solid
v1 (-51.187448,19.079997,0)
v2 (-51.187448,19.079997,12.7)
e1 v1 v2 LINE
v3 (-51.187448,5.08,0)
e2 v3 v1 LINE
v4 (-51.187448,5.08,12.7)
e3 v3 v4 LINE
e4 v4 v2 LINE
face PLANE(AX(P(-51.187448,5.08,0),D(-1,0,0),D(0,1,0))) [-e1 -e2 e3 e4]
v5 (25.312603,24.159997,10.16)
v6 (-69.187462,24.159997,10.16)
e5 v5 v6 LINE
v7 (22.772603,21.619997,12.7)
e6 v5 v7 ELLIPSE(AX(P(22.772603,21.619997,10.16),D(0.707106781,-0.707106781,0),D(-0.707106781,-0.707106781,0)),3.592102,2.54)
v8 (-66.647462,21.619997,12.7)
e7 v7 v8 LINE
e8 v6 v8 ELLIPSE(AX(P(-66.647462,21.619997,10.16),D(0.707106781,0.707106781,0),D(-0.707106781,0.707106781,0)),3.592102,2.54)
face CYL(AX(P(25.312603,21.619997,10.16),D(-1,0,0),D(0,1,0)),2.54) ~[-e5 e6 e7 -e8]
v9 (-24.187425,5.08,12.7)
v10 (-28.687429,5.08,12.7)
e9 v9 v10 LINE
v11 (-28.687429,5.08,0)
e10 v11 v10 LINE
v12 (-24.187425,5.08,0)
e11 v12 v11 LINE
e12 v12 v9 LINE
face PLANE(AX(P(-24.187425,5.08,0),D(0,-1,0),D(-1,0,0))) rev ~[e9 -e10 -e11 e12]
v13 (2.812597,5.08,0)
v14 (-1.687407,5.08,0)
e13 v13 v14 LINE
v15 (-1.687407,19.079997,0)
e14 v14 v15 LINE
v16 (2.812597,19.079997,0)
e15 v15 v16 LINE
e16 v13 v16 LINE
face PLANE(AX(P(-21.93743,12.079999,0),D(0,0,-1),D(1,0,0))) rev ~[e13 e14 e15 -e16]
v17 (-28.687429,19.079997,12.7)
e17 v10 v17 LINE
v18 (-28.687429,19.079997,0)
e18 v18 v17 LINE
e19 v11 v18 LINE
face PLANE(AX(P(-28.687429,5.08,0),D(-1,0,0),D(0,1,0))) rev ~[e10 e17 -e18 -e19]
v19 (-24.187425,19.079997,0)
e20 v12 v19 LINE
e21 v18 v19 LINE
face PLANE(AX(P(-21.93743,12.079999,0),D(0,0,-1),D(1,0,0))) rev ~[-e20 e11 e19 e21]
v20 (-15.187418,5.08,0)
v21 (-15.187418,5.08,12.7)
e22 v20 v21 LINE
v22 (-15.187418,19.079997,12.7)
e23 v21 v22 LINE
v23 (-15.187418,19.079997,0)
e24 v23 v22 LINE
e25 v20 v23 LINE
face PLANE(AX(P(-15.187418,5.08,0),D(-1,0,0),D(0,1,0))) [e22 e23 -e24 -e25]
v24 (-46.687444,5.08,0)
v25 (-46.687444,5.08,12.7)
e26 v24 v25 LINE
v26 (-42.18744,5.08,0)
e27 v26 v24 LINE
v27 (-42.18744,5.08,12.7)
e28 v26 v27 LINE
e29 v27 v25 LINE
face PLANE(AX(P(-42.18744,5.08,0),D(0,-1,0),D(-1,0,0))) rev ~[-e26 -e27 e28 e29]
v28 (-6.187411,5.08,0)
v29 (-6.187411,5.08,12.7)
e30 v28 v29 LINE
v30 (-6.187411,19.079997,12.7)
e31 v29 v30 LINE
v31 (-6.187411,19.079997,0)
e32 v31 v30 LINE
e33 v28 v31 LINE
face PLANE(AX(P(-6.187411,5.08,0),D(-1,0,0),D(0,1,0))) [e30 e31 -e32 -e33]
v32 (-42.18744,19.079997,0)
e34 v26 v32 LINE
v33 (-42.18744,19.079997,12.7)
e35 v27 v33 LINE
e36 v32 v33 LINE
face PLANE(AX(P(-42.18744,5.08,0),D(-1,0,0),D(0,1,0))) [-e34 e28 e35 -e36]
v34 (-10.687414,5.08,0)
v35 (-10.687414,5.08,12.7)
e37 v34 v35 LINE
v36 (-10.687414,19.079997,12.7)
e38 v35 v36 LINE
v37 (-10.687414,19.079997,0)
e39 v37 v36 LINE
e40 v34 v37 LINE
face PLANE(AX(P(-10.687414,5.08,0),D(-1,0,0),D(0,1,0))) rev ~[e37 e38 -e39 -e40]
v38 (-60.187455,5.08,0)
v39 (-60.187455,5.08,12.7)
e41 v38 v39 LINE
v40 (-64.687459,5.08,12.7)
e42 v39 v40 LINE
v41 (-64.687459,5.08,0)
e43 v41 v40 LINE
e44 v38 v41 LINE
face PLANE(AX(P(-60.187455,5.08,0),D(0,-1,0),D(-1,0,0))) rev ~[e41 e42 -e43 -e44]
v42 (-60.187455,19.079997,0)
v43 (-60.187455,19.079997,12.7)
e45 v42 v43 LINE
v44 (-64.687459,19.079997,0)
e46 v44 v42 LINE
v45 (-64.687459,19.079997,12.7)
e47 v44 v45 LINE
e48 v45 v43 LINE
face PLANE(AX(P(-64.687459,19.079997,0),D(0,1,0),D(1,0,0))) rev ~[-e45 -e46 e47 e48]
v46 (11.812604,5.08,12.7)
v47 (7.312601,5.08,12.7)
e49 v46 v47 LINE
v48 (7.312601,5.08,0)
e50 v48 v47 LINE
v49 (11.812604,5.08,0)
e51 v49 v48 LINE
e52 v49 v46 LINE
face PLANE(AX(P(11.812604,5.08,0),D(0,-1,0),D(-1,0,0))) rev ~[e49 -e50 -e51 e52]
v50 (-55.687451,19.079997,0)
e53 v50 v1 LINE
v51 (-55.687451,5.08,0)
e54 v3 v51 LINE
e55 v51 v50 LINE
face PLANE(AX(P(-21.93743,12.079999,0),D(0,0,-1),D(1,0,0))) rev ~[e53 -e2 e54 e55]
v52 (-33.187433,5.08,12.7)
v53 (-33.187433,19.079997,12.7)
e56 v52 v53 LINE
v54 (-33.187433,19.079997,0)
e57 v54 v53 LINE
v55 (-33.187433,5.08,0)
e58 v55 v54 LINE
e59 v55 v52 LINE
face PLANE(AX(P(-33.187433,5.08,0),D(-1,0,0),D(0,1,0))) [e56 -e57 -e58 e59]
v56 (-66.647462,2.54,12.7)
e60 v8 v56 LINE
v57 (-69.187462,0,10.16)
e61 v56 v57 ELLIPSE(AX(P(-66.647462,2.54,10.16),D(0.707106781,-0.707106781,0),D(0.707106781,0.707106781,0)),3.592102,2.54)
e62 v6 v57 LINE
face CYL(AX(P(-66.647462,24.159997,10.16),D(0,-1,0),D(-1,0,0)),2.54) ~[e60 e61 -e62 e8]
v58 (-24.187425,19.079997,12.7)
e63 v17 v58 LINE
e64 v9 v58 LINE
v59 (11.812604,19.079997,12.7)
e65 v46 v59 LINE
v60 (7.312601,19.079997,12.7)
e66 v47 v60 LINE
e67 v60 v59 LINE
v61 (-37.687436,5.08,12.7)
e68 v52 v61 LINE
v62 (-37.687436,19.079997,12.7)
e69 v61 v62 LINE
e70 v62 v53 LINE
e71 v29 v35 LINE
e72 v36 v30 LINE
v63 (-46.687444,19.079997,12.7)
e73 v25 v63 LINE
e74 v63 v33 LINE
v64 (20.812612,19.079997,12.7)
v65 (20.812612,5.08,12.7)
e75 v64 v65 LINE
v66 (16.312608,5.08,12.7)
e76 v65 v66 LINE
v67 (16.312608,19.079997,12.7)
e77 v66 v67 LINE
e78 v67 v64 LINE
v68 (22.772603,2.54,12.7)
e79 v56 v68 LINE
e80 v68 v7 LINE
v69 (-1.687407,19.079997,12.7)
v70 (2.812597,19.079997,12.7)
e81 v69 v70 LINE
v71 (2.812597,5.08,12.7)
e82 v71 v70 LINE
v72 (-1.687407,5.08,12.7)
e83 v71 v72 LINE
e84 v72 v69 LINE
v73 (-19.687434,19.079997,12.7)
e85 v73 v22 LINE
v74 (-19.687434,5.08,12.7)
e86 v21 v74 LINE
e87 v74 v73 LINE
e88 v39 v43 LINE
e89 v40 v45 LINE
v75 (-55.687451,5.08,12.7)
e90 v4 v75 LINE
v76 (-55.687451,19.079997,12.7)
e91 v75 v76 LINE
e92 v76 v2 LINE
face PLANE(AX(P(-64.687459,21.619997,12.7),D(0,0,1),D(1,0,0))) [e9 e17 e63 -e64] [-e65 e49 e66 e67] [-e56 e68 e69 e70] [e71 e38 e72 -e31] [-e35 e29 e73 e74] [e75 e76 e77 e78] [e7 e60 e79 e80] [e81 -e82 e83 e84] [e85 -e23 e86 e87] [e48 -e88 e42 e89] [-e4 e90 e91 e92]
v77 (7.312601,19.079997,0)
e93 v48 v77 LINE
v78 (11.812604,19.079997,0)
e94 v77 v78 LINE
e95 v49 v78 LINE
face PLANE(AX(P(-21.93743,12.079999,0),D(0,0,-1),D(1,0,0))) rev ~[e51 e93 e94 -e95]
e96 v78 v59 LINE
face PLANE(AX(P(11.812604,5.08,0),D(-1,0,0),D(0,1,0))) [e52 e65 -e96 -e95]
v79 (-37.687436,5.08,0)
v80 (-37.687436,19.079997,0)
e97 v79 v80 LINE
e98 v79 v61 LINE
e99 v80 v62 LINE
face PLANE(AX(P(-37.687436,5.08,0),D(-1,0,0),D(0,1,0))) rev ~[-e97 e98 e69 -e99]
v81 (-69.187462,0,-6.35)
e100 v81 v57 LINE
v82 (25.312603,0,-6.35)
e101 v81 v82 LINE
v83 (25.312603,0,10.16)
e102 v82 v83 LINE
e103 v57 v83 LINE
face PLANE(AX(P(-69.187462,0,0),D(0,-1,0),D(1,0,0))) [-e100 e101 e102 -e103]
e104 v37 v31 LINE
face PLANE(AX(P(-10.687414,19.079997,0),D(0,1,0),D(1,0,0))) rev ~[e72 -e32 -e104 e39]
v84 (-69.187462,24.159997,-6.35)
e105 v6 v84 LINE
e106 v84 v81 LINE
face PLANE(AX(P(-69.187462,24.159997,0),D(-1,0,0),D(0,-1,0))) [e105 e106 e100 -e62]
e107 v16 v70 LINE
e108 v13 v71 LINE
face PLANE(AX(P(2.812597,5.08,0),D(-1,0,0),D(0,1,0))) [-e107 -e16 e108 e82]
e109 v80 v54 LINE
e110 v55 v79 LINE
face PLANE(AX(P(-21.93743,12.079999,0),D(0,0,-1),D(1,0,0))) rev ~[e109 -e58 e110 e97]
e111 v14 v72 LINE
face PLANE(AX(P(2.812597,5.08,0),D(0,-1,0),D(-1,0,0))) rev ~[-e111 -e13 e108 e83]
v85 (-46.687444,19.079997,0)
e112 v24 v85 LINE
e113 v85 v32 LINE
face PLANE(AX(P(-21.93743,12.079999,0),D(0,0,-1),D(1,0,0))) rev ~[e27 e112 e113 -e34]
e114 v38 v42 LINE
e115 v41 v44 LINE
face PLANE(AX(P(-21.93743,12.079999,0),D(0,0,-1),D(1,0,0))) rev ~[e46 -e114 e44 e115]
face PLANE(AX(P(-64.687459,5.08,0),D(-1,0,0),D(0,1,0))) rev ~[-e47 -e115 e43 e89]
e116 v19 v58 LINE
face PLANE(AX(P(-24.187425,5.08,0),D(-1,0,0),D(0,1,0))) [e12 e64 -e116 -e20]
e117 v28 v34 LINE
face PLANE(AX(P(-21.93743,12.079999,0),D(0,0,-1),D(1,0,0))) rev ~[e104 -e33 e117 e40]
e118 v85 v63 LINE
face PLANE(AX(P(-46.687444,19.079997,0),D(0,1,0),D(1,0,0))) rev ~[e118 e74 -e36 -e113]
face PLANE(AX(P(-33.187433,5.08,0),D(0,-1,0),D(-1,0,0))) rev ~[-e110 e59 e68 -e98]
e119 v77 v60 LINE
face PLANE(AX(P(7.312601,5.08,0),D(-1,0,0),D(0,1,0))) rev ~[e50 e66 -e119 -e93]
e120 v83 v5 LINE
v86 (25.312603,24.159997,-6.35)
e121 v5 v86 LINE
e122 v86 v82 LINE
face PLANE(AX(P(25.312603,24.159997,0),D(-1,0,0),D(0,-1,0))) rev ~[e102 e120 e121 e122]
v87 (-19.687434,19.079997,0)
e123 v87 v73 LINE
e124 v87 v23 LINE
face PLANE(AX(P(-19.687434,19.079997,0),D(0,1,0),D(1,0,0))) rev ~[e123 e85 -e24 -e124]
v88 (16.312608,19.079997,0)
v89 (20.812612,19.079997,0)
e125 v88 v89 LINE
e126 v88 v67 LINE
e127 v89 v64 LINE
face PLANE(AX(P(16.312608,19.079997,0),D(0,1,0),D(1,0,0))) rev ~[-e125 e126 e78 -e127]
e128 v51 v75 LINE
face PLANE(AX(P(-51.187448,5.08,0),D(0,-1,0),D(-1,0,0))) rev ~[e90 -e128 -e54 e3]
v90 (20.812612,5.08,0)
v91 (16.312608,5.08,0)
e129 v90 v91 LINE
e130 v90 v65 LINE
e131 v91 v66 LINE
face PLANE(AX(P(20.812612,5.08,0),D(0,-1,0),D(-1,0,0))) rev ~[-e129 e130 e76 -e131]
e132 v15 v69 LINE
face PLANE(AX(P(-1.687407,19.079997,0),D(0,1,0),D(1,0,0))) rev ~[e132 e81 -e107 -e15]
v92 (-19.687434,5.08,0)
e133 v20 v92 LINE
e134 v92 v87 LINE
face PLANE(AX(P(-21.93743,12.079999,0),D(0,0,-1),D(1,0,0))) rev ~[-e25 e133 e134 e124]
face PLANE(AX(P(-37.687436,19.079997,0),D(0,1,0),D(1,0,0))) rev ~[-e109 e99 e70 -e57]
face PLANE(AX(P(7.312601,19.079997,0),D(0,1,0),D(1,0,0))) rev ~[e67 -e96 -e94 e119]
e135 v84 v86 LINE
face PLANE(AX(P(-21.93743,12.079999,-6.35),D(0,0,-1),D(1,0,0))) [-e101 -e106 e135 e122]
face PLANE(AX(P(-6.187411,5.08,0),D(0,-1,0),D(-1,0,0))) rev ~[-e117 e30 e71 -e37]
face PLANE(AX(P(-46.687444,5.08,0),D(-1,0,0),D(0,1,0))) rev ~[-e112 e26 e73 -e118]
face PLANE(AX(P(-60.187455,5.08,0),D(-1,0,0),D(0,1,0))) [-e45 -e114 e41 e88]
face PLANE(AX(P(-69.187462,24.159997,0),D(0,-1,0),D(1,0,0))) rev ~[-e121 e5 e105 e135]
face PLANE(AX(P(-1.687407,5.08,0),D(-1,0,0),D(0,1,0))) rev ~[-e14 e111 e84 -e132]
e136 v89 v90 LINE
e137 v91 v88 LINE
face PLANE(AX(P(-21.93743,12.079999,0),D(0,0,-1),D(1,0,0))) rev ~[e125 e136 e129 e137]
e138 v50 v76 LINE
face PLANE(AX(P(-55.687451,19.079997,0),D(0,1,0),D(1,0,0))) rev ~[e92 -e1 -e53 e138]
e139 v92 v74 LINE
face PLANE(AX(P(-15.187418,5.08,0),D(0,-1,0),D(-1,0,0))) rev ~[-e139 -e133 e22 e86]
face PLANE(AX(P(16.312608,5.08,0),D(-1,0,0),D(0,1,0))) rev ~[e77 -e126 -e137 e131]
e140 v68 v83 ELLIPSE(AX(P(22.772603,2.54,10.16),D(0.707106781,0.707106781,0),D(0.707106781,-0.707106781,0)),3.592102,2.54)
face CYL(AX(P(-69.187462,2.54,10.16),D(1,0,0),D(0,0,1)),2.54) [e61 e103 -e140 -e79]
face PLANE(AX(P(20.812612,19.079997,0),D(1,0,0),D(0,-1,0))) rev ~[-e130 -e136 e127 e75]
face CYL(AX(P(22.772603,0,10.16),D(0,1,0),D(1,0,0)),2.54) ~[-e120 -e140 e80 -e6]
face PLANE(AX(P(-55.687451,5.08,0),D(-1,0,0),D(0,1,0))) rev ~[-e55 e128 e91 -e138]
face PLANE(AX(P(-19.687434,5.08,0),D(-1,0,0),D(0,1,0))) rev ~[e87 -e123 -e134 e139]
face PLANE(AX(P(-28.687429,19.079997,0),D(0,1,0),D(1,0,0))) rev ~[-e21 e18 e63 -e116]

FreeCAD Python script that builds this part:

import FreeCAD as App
import Part
import Sketcher

V = App.Vector
Q = App.Units.Quantity


def edges_at(feature, points):
    """Names of the edges that pass closest to the given points."""
    edges = feature.Shape.Edges
    near = lambda p: min(range(len(edges)), key=lambda i: edges[i].distToShape(Part.Vertex(*p))[0])
    return sorted({f"Edge{near(p) + 1}" for p in points})


def add_polygon(sketch, points):
    """Adds a closed chain of lines whose ends are joined by coincident constraints."""
    first, n = sketch.GeometryCount, len(points)
    for a, b in zip(points, points[1:] + points[:1]):
        sketch.addGeometry(Part.LineSegment(App.Vector(*a, 0), App.Vector(*b, 0)), False)
    for i in range(n):
        sketch.addConstraint(Sketcher.Constraint("Coincident", first + i, 2, first + (i + 1) % n, 1))

doc = App.newDocument("Part")
body = doc.addObject("PartDesign::Body", "Body")

sketch1 = body.newObject("Sketcher::SketchObject", "Sketch")
sketch1.AttachmentSupport = (doc.getObject("XY_Plane"), [""])
sketch1.MapMode = "FlatFace"
add_polygon(sketch1, [(-69.2, 0), (25.3, 0), (25.3, 24.2), (-69.2, 24.2)])
add_polygon(sketch1, [(20.8, 5.1), (16.3, 5.1), (16.3, 19.1), (20.8, 19.1)])
add_polygon(sketch1, [(-64.7, 19.1), (-60.2, 19.1), (-60.2, 5.1), (-64.7, 5.1)])
add_polygon(sketch1, [(-51.2, 19.1), (-51.2, 5.1), (-55.7, 5.1), (-55.7, 19.1)])
add_polygon(sketch1, [(-42.2, 19.1), (-42.2, 5.1), (-46.7, 5.1), (-46.7, 19.1)])
add_polygon(sketch1, [(-33.2, 19.1), (-33.2, 5.1), (-37.7, 5.1), (-37.7, 19.1)])
add_polygon(sketch1, [(-24.2, 19.1), (-24.2, 5.1), (-28.7, 5.1), (-28.7, 19.1)])
add_polygon(sketch1, [(-19.7, 19.1), (-15.2, 19.1), (-15.2, 5.1), (-19.7, 5.1)])
add_polygon(sketch1, [(-6.2, 19.1), (-6.2, 5.1), (-10.7, 5.1), (-10.7, 19.1)])
add_polygon(sketch1, [(2.8, 19.1), (2.8, 5.1), (-1.7, 5.1), (-1.7, 19.1)])
add_polygon(sketch1, [(11.8, 19.1), (11.8, 5.1), (7.3, 5.1), (7.3, 19.1)])
sketch1.addConstraint(Sketcher.Constraint("Horizontal", 0))
sketch1.addConstraint(Sketcher.Constraint("Vertical", 1))
sketch1.addConstraint(Sketcher.Constraint("Horizontal", 2))
sketch1.addConstraint(Sketcher.Constraint("Vertical", 3))
sketch1.addConstraint(Sketcher.Constraint("Horizontal", 4))
sketch1.addConstraint(Sketcher.Constraint("Vertical", 5))
sketch1.addConstraint(Sketcher.Constraint("Horizontal", 6))
sketch1.addConstraint(Sketcher.Constraint("Vertical", 7))
sketch1.addConstraint(Sketcher.Constraint("Horizontal", 8))
sketch1.addConstraint(Sketcher.Constraint("Vertical", 9))
sketch1.addConstraint(Sketcher.Constraint("Horizontal", 10))
sketch1.addConstraint(Sketcher.Constraint("Vertical", 11))
sketch1.addConstraint(Sketcher.Constraint("Vertical", 12))
sketch1.addConstraint(Sketcher.Constraint("Horizontal", 13))
sketch1.addConstraint(Sketcher.Constraint("Vertical", 14))
sketch1.addConstraint(Sketcher.Constraint("Horizontal", 15))
sketch1.addConstraint(Sketcher.Constraint("Vertical", 16))
sketch1.addConstraint(Sketcher.Constraint("Horizontal", 17))
sketch1.addConstraint(Sketcher.Constraint("Vertical", 18))
sketch1.addConstraint(Sketcher.Constraint("Horizontal", 19))
sketch1.addConstraint(Sketcher.Constraint("Vertical", 20))
sketch1.addConstraint(Sketcher.Constraint("Horizontal", 21))
sketch1.addConstraint(Sketcher.Constraint("Vertical", 22))
sketch1.addConstraint(Sketcher.Constraint("Horizontal", 23))
sketch1.addConstraint(Sketcher.Constraint("Vertical", 24))
sketch1.addConstraint(Sketcher.Constraint("Horizontal", 25))
sketch1.addConstraint(Sketcher.Constraint("Vertical", 26))
sketch1.addConstraint(Sketcher.Constraint("Horizontal", 27))
sketch1.addConstraint(Sketcher.Constraint("Horizontal", 28))
sketch1.addConstraint(Sketcher.Constraint("Vertical", 29))
sketch1.addConstraint(Sketcher.Constraint("Horizontal", 30))
sketch1.addConstraint(Sketcher.Constraint("Vertical", 31))
sketch1.addConstraint(Sketcher.Constraint("Vertical", 32))
sketch1.addConstraint(Sketcher.Constraint("Horizontal", 33))
sketch1.addConstraint(Sketcher.Constraint("Vertical", 34))
sketch1.addConstraint(Sketcher.Constraint("Horizontal", 35))
sketch1.addConstraint(Sketcher.Constraint("Vertical", 36))
sketch1.addConstraint(Sketcher.Constraint("Horizontal", 37))
sketch1.addConstraint(Sketcher.Constraint("Vertical", 38))
sketch1.addConstraint(Sketcher.Constraint("Horizontal", 39))
sketch1.addConstraint(Sketcher.Constraint("Vertical", 40))
sketch1.addConstraint(Sketcher.Constraint("Horizontal", 41))
sketch1.addConstraint(Sketcher.Constraint("Vertical", 42))
sketch1.addConstraint(Sketcher.Constraint("Horizontal", 43))
sketch1.addConstraint(Sketcher.Constraint("PointOnObject", 0, 2, -1))
sketch1.addConstraint(Sketcher.Constraint("Horizontal", 6, 2, 8, 2))
sketch1.addConstraint(Sketcher.Constraint("Horizontal", 7, 2, 9, 2))
sketch1.addConstraint(Sketcher.Constraint("Horizontal", 10, 2, 12, 2))
sketch1.addConstraint(Sketcher.Constraint("Horizontal", 11, 2, 14, 2))
sketch1.addConstraint(Sketcher.Constraint("Horizontal", 13, 2, 16, 2))
sketch1.addConstraint(Sketcher.Constraint("Horizontal", 15, 2, 18, 2))
sketch1.addConstraint(Sketcher.Constraint("Horizontal", 17, 2, 20, 2))
sketch1.addConstraint(Sketcher.Constraint("Horizontal", 19, 2, 22, 2))
sketch1.addConstraint(Sketcher.Constraint("Horizontal", 21, 2, 24, 2))
sketch1.addConstraint(Sketcher.Constraint("Horizontal", 23, 2, 26, 2))
sketch1.addConstraint(Sketcher.Constraint("Horizontal", 27, 2, 28, 2))
sketch1.addConstraint(Sketcher.Constraint("Horizontal", 25, 2, 29, 2))
sketch1.addConstraint(Sketcher.Constraint("Horizontal", 30, 2, 32, 2))
sketch1.addConstraint(Sketcher.Constraint("Horizontal", 31, 2, 34, 2))
sketch1.addConstraint(Sketcher.Constraint("Horizontal", 33, 2, 36, 2))
sketch1.addConstraint(Sketcher.Constraint("Horizontal", 35, 2, 38, 2))
sketch1.addConstraint(Sketcher.Constraint("Horizontal", 37, 2, 40, 2))
sketch1.addConstraint(Sketcher.Constraint("Horizontal", 39, 2, 42, 2))
sketch1.addConstraint(Sketcher.Constraint("Equal", 6, 8))
sketch1.addConstraint(Sketcher.Constraint("Equal", 10, 13))
sketch1.addConstraint(Sketcher.Constraint("Equal", 15, 17))
sketch1.addConstraint(Sketcher.Constraint("Equal", 19, 21))
sketch1.addConstraint(Sketcher.Constraint("Equal", 23, 25))
sketch1.addConstraint(Sketcher.Constraint("Equal", 27, 33))
sketch1.addConstraint(Sketcher.Constraint("Equal", 35, 37))
sketch1.addConstraint(Sketcher.Constraint("Equal", 39, 41))
sketch1.addConstraint(Sketcher.Constraint("DistanceY", -1, 1, 4, 2, Q("0.2 in")))
sketch1.addConstraint(Sketcher.Constraint("DistanceY", 5, 2, 1, 2, Q("0.2 in")))
sketch1.addConstraint(Sketcher.Constraint("DistanceX", -1, 1, 41, 2, 7.312601))
sketch1.addConstraint(Sketcher.Constraint("DistanceX", 20, 2, 30, 2, 13.499998))
sketch1.addConstraint(Sketcher.Constraint("DistanceX", 40, 2, 0, 2, 13.499998))
sketch1.addConstraint(Sketcher.Constraint("DistanceX", 0, 1, 0, 2, 94.500065))
sketch1.addConstraint(Sketcher.Constraint("DistanceX", 4, 2, 4, 1, 4.500004))
sketch1.addConstraint(Sketcher.Constraint("DistanceX", 28, 1, 28, 2, 4.500016))
sketch1.addConstraint(Sketcher.Constraint("DistanceY", 1, 1, 1, 2, 24.159997))
sketch1.addConstraint(Sketcher.Constraint("DistanceX", -1, 1, 6, 2, 20.812612))
sketch1.addConstraint(Sketcher.Constraint("DistanceX", 10, 2, -1, 1, 64.687459))
sketch1.addConstraint(Sketcher.Constraint("DistanceX", 13, 2, -1, 1, 55.687451))
sketch1.addConstraint(Sketcher.Constraint("DistanceX", 16, 2, -1, 1, 42.18744))
sketch1.addConstraint(Sketcher.Constraint("DistanceX", 25, 2, -1, 1, 28.687429))
sketch1.addConstraint(Sketcher.Constraint("DistanceX", 32, 2, -1, 1, 6.187411))
sketch1.addConstraint(Sketcher.Constraint("DistanceX", 17, 2, 20, 2, 13.500011))
sketch1.addConstraint(Sketcher.Constraint("DistanceX", 36, 2, 4, 2, 13.500011))
pad1 = body.newObject("PartDesign::Pad", "Pad")
pad1.Profile = sketch1
pad1.Length = Q("0.5 in")

sketch2 = body.newObject("Sketcher::SketchObject", "Sketch001")
sketch2.AttachmentSupport = (doc.getObject("XY_Plane"), [""])
sketch2.MapMode = "FlatFace"
add_polygon(sketch2, [(-69, 0), (-69, 24), (25, 24), (25, 0)])
sketch2.addConstraint(Sketcher.Constraint("Vertical", 0))
sketch2.addConstraint(Sketcher.Constraint("Horizontal", 1))
sketch2.addConstraint(Sketcher.Constraint("Vertical", 2))
sketch2.addConstraint(Sketcher.Constraint("Horizontal", 3))
sketch2.addConstraint(Sketcher.Constraint("PointOnObject", 2, 2, -1))
sketch2.addConstraint(Sketcher.Constraint("DistanceX", 1, 1, 1, 2, 94.500065))
sketch2.addConstraint(Sketcher.Constraint("DistanceY", 0, 1, 0, 2, 24.159997))
sketch2.addConstraint(Sketcher.Constraint("DistanceX", 0, 2, -1, 1, 69.187462))
pad2 = body.newObject("PartDesign::Pad", "Pad001")
pad2.Profile = sketch2
pad2.Length = Q("0.25 in")
pad2.Reversed = True
doc.recompute()

fillet = body.newObject("PartDesign::Fillet", "Fillet")
fillet.Base = (pad2, edges_at(pad2, [
    (-21.937, 24.16, 12.7),
    (-21.937, 0, 12.7),
    (-69.187, 12.08, 12.7),
    (25.313, 12.08, 12.7),
]))
fillet.Radius = Q("0.1 in")

doc.recompute()
